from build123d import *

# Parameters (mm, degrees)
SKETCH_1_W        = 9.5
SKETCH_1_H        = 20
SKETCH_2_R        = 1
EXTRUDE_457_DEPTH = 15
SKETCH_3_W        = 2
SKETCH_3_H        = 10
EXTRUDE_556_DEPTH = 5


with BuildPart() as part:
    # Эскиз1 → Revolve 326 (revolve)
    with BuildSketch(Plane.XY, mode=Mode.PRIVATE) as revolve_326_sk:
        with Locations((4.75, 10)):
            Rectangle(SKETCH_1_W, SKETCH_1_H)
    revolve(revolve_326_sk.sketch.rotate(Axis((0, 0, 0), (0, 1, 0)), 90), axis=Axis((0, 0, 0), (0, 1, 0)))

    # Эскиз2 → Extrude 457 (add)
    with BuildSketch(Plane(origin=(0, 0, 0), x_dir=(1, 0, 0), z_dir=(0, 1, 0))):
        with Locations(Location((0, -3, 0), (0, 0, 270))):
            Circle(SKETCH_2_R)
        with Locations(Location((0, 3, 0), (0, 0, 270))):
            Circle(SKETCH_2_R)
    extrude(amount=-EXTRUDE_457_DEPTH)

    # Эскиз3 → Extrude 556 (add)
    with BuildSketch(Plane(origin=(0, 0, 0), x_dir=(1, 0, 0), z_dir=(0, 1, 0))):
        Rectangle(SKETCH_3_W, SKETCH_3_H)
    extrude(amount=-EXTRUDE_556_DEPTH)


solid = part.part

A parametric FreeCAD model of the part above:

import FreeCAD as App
import Part
import Sketcher
Q = App.Units.Quantity

doc = App.newDocument("Part")
params = doc.addObject("Spreadsheet::Sheet", "Params")
for row, (alias, value) in enumerate([
    ("sketch1_height", "20 mm"),
    ("sketch1_width", "9.5 mm"),
    ("revolution_angle", "360 deg"),
    ("sketch2_diameter", "2 mm"),
    ("pad1_length", "15 mm"),
    ("sketch3_width", "2 mm"),
    ("sketch3_height", "10 mm"),
    ("pad2_length", "5 mm"),
], start=1):
    params.set(f"A{row}", alias)
    params.set(f"B{row}", "=" + value)
    params.setAlias(f"B{row}", alias)

body = doc.addObject("PartDesign::Body", "Body")

# Sketch on XY plane
sketch1 = body.newObject("Sketcher::SketchObject", "Sketch")
sketch1.AttachmentSupport = (doc.getObject("XY_Plane"), [""])
sketch1.MapMode = "FlatFace"
sketch1.addGeometry([
    Part.LineSegment(App.Vector(0, 20, 0), App.Vector(0, 0, 0)),
    Part.LineSegment(App.Vector(0, 0, 0), App.Vector(10, 0, 0)),
    Part.LineSegment(App.Vector(10, 0, 0), App.Vector(10, 20, 0)),
    Part.LineSegment(App.Vector(10, 20, 0), App.Vector(0, 20, 0)),
], False)
sketch1.addConstraint([
    Sketcher.Constraint("Coincident", 0, 2, 1, 1),
    Sketcher.Constraint("Coincident", 1, 2, 2, 1),
    Sketcher.Constraint("Coincident", 2, 2, 3, 1),
    Sketcher.Constraint("Coincident", 3, 2, 0, 1),
    Sketcher.Constraint("Vertical", 0),
    Sketcher.Constraint("Horizontal", 1),
    Sketcher.Constraint("Vertical", 2),
    Sketcher.Constraint("Horizontal", 3),
    Sketcher.Constraint("Coincident", 0, 2, -1, 1),
    Sketcher.Constraint("DistanceY", 0, 2, 0, 1, Q("20 mm")),
    Sketcher.Constraint("DistanceX", 1, 1, 1, 2, Q("9.5 mm")),
])
sketch1.setExpression("Constraints[9]", "Params.sketch1_height")
sketch1.setExpression("Constraints[10]", "Params.sketch1_width")
revolution = body.newObject("PartDesign::Revolution", "Revolution")
revolution.Profile = sketch1
revolution.ReferenceAxis = (sketch1, ["V_Axis"])
revolution.setExpression("Angle", "Params.revolution_angle")

# Sketch on XZ plane
sketch2 = body.newObject("Sketcher::SketchObject", "Sketch001")
sketch2.AttachmentSupport = (doc.getObject("XZ_Plane"), [""])
sketch2.MapMode = "FlatFace"
sketch2.addGeometry([
    Part.Circle(App.Vector(0, 3, 0), App.Vector(0, 0, 1), 1),
    Part.Circle(App.Vector(0, -3, 0), App.Vector(0, 0, 1), 1),
], False)
sketch2.addConstraint([
    Sketcher.Constraint("Equal", 0, 1),
    Sketcher.Constraint("Symmetric", 0, 3, 1, 3, -1, 1),
    Sketcher.Constraint("PointOnObject", 0, 3, -2),
    Sketcher.Constraint("Diameter", 0, Q("2 mm")),
    Sketcher.Constraint("DistanceY", -1, 1, 0, 3, Q("3 mm")),
])
sketch2.setExpression("Constraints[3]", "Params.sketch2_diameter")
pad1 = body.newObject("PartDesign::Pad", "Pad")
pad1.Profile = sketch2
pad1.setExpression("Length", "Params.pad1_length")

# Sketch on XZ plane
sketch3 = body.newObject("Sketcher::SketchObject", "Sketch002")
sketch3.AttachmentSupport = (doc.getObject("XZ_Plane"), [""])
sketch3.MapMode = "FlatFace"
sketch3.addGeometry([
    Part.LineSegment(App.Vector(-1, -5, 0), App.Vector(-1, 5, 0)),
    Part.LineSegment(App.Vector(-1, 5, 0), App.Vector(1, 5, 0)),
    Part.LineSegment(App.Vector(1, 5, 0), App.Vector(1, -5, 0)),
    Part.LineSegment(App.Vector(1, -5, 0), App.Vector(-1, -5, 0)),
], False)
sketch3.addConstraint([
    Sketcher.Constraint("Coincident", 0, 2, 1, 1),
    Sketcher.Constraint("Coincident", 1, 2, 2, 1),
    Sketcher.Constraint("Coincident", 2, 2, 3, 1),
    Sketcher.Constraint("Coincident", 3, 2, 0, 1),
    Sketcher.Constraint("Vertical", 0),
    Sketcher.Constraint("Horizontal", 1),
    Sketcher.Constraint("Vertical", 2),
    Sketcher.Constraint("Horizontal", 3),
    Sketcher.Constraint("Symmetric", 0, 2, 2, 2, -1, 1),
    Sketcher.Constraint("DistanceX", 1, 1, 1, 2, Q("2 mm")),
    Sketcher.Constraint("DistanceY", 0, 1, 0, 2, Q("10 mm")),
])
sketch3.setExpression("Constraints[9]", "Params.sketch3_width")
sketch3.setExpression("Constraints[10]", "Params.sketch3_height")
pad2 = body.newObject("PartDesign::Pad", "Pad001")
pad2.Profile = sketch3
pad2.setExpression("Length", "Params.pad2_length")

doc.recompute()
